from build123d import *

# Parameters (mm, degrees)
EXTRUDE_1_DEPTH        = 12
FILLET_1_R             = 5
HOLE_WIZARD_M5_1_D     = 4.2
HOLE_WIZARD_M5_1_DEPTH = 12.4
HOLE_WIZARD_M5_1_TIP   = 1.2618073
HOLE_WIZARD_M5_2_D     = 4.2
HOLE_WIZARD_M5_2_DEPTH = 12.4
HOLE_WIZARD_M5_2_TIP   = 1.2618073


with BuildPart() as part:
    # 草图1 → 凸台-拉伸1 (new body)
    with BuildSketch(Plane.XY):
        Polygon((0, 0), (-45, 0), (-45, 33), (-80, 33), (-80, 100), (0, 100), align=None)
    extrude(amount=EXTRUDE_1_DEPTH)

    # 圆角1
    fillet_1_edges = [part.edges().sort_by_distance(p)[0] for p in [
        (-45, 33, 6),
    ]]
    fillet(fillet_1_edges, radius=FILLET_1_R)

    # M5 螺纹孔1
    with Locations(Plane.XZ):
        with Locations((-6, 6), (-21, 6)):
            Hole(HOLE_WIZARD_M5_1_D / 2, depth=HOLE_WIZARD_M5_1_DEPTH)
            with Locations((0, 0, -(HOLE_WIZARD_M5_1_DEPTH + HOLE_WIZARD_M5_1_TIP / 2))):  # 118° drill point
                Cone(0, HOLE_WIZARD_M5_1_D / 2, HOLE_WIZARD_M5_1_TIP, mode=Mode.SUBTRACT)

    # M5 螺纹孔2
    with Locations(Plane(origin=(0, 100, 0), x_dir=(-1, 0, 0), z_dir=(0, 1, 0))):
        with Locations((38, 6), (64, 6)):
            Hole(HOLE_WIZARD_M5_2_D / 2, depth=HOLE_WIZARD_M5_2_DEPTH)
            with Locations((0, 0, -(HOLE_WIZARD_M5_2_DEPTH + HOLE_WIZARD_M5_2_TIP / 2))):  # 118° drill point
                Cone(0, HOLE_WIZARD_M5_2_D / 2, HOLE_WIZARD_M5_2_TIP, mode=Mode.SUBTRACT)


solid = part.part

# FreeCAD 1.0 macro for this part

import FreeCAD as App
import Part
import Sketcher

V = App.Vector
Q = App.Units.Quantity


def edges_at(feature, points):
    """Names of the edges that pass closest to the given points."""
    edges = feature.Shape.Edges
    near = lambda p: min(range(len(edges)), key=lambda i: edges[i].distToShape(Part.Vertex(*p))[0])
    return sorted({f"Edge{near(p) + 1}" for p in points})


def add_polygon(sketch, points):
    """Adds a closed chain of lines whose ends are joined by coincident constraints."""
    first, n = sketch.GeometryCount, len(points)
    for a, b in zip(points, points[1:] + points[:1]):
        sketch.addGeometry(Part.LineSegment(App.Vector(*a, 0), App.Vector(*b, 0)), False)
    for i in range(n):
        sketch.addConstraint(Sketcher.Constraint("Coincident", first + i, 2, first + (i + 1) % n, 1))

doc = App.newDocument("Part")
params = doc.addObject("Spreadsheet::Sheet", "Params")
for row, (alias, value) in enumerate([
    ("sketch1_width", "45 mm"),
    ("sketch1_width2", "80 mm"),
    ("sketch1_height", "100 mm"),
    ("sketch1_height2", "67 mm"),
    ("pad1_length", "12 mm"),
    ("fillet_radius", "5 mm"),
    ("sketch2_diameter", "4.2 mm"),
    ("hole_diameter", "4.2 mm"),
    ("hole_depth", "12.4 mm"),
    ("sketch3_diameter", "4.2 mm"),
    ("hole2_diameter", "4.2 mm"),
    ("hole2_depth", "12.4 mm"),
], start=1):
    params.set(f"A{row}", alias)
    params.set(f"B{row}", "=" + value)
    params.setAlias(f"B{row}", alias)

body = doc.addObject("PartDesign::Body", "Body")

# Sketch on XY plane
sketch1 = body.newObject("Sketcher::SketchObject", "Sketch")
sketch1.AttachmentSupport = (doc.getObject("XY_Plane"), [""])
sketch1.MapMode = "FlatFace"
add_polygon(sketch1, [(-45, 0), (0, 0), (0, 100), (-80, 100), (-80, 33), (-45, 33)])  # lines 0-5
sketch1.addConstraint(Sketcher.Constraint("Horizontal", 0))
sketch1.addConstraint(Sketcher.Constraint("Vertical", 1))
sketch1.addConstraint(Sketcher.Constraint("Horizontal", 2))
sketch1.addConstraint(Sketcher.Constraint("Vertical", 3))
sketch1.addConstraint(Sketcher.Constraint("Horizontal", 4))
sketch1.addConstraint(Sketcher.Constraint("Vertical", 5))
sketch1.addConstraint(Sketcher.Constraint("Coincident", 0, 2, -1, 1))
sketch1.addConstraint(Sketcher.Constraint("DistanceX", 0, 1, 0, 2, Q("45 mm")))
sketch1.addConstraint(Sketcher.Constraint("DistanceX", 2, 2, 2, 1, Q("80 mm")))
sketch1.addConstraint(Sketcher.Constraint("DistanceY", 1, 1, 1, 2, Q("100 mm")))
sketch1.addConstraint(Sketcher.Constraint("DistanceY", 3, 2, 3, 1, Q("67 mm")))
sketch1.setExpression("Constraints[13]", "Params.sketch1_width")
sketch1.setExpression("Constraints[14]", "Params.sketch1_width2")
sketch1.setExpression("Constraints[15]", "Params.sketch1_height")
sketch1.setExpression("Constraints[16]", "Params.sketch1_height2")
pad1 = body.newObject("PartDesign::Pad", "Pad")
pad1.Profile = sketch1
pad1.setExpression("Length", "Params.pad1_length")
doc.recompute()

fillet = body.newObject("PartDesign::Fillet", "Fillet")
fillet.Base = (pad1, edges_at(pad1, [(-45, 33, 6)]))
fillet.setExpression("Radius", "Params.fillet_radius")

# Sketch on XZ plane
sketch2 = body.newObject("Sketcher::SketchObject", "Sketch001")
sketch2.AttachmentSupport = (doc.getObject("XZ_Plane"), [""])
sketch2.MapMode = "FlatFace"
sketch2.addGeometry(Part.Circle(V(-6, 6, 0), V(0, 0, 1), 2.1), False)
sketch2.addGeometry(Part.Circle(V(-21, 6, 0), V(0, 0, 1), 2.1), False)
sketch2.addConstraint(Sketcher.Constraint("Equal", 0, 1))
sketch2.addConstraint(Sketcher.Constraint("Horizontal", 0, 3, 1, 3))
sketch2.addConstraint(Sketcher.Constraint("Diameter", 0, Q("4.2 mm")))
sketch2.addConstraint(Sketcher.Constraint("DistanceX", 0, 3, -1, 1, Q("6 mm")))
sketch2.addConstraint(Sketcher.Constraint("DistanceY", -1, 1, 0, 3, Q("6 mm")))
sketch2.addConstraint(Sketcher.Constraint("DistanceX", 1, 3, -1, 1, Q("21 mm")))
sketch2.setExpression("Constraints[2]", "Params.sketch2_diameter")
doc.recompute()
hole = body.newObject("PartDesign::Hole", "Hole")
hole.Profile = sketch2
hole.ThreadType = "None"
hole.setExpression("Diameter", "Params.hole_diameter")
hole.DepthType = "Dimension"
hole.setExpression("Depth", "Params.hole_depth")
hole.DrillPoint = "Angled"
hole.DrillPointAngle = 118

# Sketch on XZ plane
sketch3 = body.newObject("Sketcher::SketchObject", "Sketch002")
sketch3.AttachmentSupport = (doc.getObject("XZ_Plane"), [""])
sketch3.MapMode = "FlatFace"
sketch3.AttachmentOffset = App.Placement(V(0, 0, -100), App.Rotation())
sketch3.addGeometry(Part.Circle(V(-38, 6, 0), V(0, 0, 1), 2.1), False)
sketch3.addGeometry(Part.Circle(V(-64, 6, 0), V(0, 0, 1), 2.1), False)
sketch3.addConstraint(Sketcher.Constraint("Equal", 0, 1))
sketch3.addConstraint(Sketcher.Constraint("Horizontal", 0, 3, 1, 3))
sketch3.addConstraint(Sketcher.Constraint("Diameter", 0, Q("4.2 mm")))
sketch3.addConstraint(Sketcher.Constraint("DistanceX", 0, 3, -1, 1, Q("38 mm")))
sketch3.addConstraint(Sketcher.Constraint("DistanceY", -1, 1, 0, 3, Q("6 mm")))
sketch3.addConstraint(Sketcher.Constraint("DistanceX", 1, 3, -1, 1, Q("64 mm")))
sketch3.setExpression("Constraints[2]", "Params.sketch3_diameter")
doc.recompute()
hole2 = body.newObject("PartDesign::Hole", "Hole001")
hole2.Profile = sketch3
hole2.ThreadType = "None"
hole2.setExpression("Diameter", "Params.hole2_diameter")
hole2.DepthType = "Dimension"
hole2.setExpression("Depth", "Params.hole2_depth")
hole2.DrillPoint = "Angled"
hole2.DrillPointAngle = 118
hole2.Reversed = True

doc.recompute()
